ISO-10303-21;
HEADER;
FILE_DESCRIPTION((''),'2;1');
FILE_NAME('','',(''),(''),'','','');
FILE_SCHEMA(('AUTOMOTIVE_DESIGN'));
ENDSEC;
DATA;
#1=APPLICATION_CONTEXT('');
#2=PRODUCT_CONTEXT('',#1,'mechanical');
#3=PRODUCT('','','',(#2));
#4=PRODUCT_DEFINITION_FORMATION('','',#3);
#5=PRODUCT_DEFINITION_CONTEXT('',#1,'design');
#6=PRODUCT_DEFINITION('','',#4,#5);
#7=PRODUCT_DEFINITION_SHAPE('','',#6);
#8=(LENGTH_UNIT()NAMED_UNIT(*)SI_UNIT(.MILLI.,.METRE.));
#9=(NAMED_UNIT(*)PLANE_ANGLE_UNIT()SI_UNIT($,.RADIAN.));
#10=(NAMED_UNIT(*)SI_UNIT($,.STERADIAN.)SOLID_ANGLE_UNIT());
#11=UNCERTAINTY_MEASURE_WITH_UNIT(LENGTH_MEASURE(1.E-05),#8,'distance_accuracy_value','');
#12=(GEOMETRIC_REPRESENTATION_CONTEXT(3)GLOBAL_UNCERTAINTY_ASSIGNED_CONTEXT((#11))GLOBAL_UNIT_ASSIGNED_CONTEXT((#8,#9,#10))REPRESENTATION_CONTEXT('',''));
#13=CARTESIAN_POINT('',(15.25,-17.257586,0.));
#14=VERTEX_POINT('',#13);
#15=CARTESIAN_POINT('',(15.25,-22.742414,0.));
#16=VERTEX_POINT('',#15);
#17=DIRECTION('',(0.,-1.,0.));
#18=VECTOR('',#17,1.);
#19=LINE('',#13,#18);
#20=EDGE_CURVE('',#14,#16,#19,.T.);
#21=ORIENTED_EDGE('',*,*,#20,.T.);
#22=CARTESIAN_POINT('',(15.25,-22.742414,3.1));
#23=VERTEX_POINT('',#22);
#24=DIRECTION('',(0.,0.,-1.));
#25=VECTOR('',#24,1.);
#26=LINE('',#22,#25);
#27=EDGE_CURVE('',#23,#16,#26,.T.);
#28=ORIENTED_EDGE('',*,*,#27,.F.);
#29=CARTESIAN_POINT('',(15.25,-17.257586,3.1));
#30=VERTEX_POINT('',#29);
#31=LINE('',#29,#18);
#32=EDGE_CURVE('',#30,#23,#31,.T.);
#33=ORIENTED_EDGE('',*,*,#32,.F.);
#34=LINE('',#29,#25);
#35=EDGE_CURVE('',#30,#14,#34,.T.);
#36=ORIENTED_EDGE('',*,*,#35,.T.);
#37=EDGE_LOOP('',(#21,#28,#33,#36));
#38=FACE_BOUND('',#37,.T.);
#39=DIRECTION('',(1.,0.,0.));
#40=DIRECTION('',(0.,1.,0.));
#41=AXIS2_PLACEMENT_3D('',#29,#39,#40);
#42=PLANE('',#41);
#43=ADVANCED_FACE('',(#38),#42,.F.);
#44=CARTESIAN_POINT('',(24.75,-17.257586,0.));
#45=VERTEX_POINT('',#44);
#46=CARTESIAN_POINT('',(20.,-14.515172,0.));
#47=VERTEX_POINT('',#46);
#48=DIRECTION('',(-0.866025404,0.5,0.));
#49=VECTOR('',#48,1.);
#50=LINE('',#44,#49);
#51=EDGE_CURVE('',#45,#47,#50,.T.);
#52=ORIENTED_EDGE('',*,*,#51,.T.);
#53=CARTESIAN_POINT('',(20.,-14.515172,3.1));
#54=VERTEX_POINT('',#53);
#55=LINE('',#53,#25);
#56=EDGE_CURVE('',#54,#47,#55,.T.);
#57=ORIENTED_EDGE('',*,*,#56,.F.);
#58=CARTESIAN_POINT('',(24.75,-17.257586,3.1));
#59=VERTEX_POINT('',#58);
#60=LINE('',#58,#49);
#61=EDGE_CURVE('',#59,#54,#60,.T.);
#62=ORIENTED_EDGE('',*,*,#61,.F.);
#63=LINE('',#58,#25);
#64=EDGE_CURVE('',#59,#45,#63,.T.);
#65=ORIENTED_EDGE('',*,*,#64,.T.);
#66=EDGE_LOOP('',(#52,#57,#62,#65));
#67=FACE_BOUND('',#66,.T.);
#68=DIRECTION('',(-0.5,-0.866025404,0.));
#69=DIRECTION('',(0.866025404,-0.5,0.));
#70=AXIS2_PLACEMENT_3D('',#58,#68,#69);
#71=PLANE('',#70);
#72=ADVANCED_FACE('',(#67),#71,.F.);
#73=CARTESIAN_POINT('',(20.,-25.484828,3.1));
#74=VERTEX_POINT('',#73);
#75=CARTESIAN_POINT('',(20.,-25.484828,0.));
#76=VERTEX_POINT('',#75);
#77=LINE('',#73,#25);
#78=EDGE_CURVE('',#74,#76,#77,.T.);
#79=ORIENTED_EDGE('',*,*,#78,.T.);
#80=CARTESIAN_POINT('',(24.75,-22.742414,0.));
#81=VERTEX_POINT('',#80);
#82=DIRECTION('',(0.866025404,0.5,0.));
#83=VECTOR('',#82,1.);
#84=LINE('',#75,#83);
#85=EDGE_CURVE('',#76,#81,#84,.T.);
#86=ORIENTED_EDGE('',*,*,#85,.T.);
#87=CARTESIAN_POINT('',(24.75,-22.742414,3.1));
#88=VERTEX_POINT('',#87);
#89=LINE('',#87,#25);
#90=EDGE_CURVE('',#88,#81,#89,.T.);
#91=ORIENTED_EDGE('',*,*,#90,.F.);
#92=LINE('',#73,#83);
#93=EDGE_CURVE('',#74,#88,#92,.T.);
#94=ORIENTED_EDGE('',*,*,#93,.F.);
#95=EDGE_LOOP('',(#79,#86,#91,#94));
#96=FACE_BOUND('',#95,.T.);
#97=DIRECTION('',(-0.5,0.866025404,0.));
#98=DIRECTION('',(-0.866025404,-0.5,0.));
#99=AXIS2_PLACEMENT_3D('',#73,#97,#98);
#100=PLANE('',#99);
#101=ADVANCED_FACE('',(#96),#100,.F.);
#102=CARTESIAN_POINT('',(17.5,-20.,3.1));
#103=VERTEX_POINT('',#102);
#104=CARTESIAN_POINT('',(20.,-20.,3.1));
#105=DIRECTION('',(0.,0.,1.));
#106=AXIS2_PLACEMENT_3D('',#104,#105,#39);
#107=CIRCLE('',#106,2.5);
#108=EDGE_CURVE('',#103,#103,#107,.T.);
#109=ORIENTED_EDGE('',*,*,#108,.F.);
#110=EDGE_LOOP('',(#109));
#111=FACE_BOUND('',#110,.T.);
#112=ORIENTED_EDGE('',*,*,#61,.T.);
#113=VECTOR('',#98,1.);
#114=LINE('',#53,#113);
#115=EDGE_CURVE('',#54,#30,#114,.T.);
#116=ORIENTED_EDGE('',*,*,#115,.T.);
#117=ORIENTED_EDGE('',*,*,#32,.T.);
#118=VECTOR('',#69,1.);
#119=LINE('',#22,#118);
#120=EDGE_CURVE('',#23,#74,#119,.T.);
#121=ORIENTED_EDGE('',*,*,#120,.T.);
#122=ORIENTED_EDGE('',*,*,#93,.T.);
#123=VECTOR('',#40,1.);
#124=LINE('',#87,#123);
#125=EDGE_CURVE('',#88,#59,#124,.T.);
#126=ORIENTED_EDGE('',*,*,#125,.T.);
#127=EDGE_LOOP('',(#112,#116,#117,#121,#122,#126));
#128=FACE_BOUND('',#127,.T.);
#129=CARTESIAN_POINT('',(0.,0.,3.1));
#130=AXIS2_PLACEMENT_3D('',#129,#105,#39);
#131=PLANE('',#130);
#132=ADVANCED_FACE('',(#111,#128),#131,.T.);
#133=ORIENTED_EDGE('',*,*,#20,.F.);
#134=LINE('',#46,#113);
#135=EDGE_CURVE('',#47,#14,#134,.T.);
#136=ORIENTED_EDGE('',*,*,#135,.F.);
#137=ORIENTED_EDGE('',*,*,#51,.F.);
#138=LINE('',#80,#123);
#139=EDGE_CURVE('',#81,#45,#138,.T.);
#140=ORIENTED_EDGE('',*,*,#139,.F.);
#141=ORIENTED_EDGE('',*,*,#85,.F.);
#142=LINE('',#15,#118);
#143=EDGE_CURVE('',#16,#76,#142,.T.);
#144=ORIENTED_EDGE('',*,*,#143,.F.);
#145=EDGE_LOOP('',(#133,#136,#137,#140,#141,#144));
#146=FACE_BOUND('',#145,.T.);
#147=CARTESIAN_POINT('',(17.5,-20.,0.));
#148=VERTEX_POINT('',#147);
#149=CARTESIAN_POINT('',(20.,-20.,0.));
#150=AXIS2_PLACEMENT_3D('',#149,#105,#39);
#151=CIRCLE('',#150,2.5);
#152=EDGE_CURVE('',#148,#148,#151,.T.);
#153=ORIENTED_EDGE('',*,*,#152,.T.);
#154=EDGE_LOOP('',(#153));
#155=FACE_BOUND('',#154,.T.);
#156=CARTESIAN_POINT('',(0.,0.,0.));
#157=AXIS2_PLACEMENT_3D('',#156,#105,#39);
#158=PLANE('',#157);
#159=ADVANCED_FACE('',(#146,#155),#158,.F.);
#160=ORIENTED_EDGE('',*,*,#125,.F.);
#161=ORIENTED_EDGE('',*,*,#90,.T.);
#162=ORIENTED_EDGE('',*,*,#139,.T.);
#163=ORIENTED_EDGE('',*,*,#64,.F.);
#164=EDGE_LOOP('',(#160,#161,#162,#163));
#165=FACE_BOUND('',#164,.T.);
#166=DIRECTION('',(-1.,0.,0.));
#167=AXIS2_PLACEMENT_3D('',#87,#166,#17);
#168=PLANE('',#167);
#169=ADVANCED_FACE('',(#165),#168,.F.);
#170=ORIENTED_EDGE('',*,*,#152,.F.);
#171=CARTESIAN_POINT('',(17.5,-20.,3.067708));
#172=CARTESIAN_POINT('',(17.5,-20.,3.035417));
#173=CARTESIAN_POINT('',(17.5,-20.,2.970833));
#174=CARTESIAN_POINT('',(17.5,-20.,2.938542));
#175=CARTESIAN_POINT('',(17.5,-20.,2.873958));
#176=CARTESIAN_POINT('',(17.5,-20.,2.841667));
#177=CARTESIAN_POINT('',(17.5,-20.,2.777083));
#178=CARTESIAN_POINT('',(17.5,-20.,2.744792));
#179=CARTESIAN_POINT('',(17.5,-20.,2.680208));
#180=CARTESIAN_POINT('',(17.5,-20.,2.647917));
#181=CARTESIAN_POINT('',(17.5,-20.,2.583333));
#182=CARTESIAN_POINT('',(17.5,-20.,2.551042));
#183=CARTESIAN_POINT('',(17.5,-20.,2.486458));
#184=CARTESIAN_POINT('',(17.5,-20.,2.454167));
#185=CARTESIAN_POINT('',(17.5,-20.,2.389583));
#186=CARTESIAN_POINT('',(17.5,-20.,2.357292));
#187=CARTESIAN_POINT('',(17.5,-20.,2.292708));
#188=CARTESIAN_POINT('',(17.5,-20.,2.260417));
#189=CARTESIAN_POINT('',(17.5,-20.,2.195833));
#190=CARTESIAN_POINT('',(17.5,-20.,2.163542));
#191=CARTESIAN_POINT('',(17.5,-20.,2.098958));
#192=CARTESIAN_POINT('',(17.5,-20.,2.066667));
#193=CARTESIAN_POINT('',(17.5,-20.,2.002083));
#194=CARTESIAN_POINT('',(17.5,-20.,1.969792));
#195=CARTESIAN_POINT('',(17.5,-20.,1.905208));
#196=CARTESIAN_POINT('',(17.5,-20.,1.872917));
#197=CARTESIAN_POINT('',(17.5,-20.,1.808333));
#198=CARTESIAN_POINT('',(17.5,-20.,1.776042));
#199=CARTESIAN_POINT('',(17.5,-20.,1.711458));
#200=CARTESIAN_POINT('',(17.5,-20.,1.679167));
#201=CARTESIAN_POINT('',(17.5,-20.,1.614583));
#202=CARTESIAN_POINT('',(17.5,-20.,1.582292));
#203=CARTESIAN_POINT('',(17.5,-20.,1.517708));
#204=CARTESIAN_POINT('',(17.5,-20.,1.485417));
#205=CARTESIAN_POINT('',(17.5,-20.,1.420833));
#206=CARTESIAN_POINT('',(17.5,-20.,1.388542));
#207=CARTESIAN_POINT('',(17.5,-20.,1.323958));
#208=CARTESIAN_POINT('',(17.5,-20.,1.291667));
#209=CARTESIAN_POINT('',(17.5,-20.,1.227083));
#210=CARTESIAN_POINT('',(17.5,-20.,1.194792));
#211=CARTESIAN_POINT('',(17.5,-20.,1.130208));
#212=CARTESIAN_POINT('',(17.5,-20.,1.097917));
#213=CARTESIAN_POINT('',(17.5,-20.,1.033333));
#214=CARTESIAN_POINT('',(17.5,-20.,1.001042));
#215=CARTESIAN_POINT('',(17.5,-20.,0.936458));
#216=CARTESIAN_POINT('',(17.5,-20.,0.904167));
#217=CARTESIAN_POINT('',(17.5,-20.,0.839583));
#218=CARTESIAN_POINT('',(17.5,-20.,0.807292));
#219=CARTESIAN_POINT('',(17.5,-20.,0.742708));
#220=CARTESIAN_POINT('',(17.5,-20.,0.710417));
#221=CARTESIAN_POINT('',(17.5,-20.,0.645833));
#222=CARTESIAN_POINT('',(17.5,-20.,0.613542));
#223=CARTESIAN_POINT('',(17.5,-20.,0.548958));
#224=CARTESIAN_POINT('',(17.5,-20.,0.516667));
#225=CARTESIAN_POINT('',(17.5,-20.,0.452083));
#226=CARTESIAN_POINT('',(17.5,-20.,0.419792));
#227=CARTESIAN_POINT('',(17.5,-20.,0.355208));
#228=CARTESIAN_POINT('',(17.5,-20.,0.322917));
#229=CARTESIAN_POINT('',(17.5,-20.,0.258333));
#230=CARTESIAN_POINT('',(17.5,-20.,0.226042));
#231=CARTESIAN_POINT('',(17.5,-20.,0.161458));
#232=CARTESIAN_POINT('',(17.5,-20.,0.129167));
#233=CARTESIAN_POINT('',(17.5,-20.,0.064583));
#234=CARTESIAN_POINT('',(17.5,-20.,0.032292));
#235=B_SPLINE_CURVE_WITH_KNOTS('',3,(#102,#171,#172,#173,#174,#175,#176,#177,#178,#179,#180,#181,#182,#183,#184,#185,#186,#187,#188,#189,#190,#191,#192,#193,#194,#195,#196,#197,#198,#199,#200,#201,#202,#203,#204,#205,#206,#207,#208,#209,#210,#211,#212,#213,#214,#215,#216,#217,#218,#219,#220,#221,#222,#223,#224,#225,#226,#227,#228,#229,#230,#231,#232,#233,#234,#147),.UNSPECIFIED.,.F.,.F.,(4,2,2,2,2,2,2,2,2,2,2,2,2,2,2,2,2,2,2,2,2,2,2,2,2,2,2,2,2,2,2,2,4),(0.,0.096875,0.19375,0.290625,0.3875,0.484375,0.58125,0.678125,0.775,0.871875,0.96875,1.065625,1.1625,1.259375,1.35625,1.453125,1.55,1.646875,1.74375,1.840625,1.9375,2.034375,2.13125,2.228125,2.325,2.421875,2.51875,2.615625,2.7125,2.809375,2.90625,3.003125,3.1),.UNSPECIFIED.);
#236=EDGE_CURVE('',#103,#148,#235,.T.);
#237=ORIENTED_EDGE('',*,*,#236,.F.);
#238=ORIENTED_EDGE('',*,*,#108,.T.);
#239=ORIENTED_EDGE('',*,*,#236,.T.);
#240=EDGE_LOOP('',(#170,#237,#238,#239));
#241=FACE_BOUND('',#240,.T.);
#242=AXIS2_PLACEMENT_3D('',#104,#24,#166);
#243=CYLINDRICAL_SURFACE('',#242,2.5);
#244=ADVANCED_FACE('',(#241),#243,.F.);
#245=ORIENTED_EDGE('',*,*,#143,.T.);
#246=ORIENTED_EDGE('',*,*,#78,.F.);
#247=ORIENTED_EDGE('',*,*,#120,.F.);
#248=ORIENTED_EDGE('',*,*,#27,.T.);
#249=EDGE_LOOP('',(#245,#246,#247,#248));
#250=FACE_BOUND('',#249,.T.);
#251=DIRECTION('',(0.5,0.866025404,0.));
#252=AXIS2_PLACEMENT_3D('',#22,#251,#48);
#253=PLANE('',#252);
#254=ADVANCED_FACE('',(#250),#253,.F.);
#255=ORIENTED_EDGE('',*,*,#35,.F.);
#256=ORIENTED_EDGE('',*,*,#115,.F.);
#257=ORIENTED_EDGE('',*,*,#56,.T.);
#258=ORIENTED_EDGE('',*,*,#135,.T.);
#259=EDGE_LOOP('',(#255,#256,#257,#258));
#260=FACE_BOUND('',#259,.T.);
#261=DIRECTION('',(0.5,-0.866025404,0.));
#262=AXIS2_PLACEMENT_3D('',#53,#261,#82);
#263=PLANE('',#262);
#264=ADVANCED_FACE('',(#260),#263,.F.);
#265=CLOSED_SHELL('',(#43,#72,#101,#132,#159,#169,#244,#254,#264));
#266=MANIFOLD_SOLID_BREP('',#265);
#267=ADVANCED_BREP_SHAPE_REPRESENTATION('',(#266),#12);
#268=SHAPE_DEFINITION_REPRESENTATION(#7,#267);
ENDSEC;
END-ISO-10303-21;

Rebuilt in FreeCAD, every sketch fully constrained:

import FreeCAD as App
import Part
import Sketcher

V = App.Vector
Q = App.Units.Quantity


def add_polygon(sketch, points):
    """Adds a closed chain of lines whose ends are joined by coincident constraints."""
    first, n = sketch.GeometryCount, len(points)
    for a, b in zip(points, points[1:] + points[:1]):
        sketch.addGeometry(Part.LineSegment(App.Vector(*a, 0), App.Vector(*b, 0)), False)
    for i in range(n):
        sketch.addConstraint(Sketcher.Constraint("Coincident", first + i, 2, first + (i + 1) % n, 1))

doc = App.newDocument("Part")
params = doc.addObject("Spreadsheet::Sheet", "Params")
for row, (alias, value) in enumerate([
    ("sketch1_diameter", "5 mm"),
    ("pad1_length", "3.1 mm"),
], start=1):
    params.set(f"A{row}", alias)
    params.set(f"B{row}", "=" + value)
    params.setAlias(f"B{row}", alias)

body = doc.addObject("PartDesign::Body", "Body")

# Sketch on XY plane
sketch1 = body.newObject("Sketcher::SketchObject", "Sketch")
sketch1.AttachmentSupport = (doc.getObject("XY_Plane"), [""])
sketch1.MapMode = "FlatFace"
add_polygon(sketch1, [(20, -25.5), (24.8, -22.7), (24.8, -17.3), (20, -14.5), (15.2, -17.3), (15.2, -22.7)])  # lines 0-5
sketch1.addGeometry(Part.Circle(V(20, -20, 0), V(0, 0, 1), 2.5), False)  # 6
sketch1.addConstraint([
    Sketcher.Constraint("Vertical", 1),
    Sketcher.Constraint("Vertical", 4),
    Sketcher.Constraint("Parallel", 0, 3),
    Sketcher.Constraint("Parallel", 2, 5),
    Sketcher.Constraint("Horizontal", 1, 2, 3, 2),
    Sketcher.Constraint("Horizontal", 0, 2, 4, 2),
    Sketcher.Constraint("Vertical", 6, 3, 2, 2),
    Sketcher.Constraint("Vertical", 2, 2, 5, 2),
    Sketcher.Constraint("Diameter", 6, 5.0),
    Sketcher.Constraint("Angle", 0, Q("30 deg")),
    Sketcher.Constraint("DistanceX", -1, 1, 6, 3, 20.0),
    Sketcher.Constraint("DistanceY", 6, 3, -1, 1, 20.0),
    Sketcher.Constraint("DistanceX", 3, 2, 1, 2, 9.5),
    Sketcher.Constraint("DistanceY", 1, 1, 1, 2, 5.484828),
    Sketcher.Constraint("DistanceY", 0, 2, -1, 1, 22.742414),
])
sketch1.setExpression("Constraints[14]", "Params.sketch1_diameter")
pad1 = body.newObject("PartDesign::Pad", "Pad")
pad1.Profile = sketch1
pad1.setExpression("Length", "Params.pad1_length")

doc.recompute()
